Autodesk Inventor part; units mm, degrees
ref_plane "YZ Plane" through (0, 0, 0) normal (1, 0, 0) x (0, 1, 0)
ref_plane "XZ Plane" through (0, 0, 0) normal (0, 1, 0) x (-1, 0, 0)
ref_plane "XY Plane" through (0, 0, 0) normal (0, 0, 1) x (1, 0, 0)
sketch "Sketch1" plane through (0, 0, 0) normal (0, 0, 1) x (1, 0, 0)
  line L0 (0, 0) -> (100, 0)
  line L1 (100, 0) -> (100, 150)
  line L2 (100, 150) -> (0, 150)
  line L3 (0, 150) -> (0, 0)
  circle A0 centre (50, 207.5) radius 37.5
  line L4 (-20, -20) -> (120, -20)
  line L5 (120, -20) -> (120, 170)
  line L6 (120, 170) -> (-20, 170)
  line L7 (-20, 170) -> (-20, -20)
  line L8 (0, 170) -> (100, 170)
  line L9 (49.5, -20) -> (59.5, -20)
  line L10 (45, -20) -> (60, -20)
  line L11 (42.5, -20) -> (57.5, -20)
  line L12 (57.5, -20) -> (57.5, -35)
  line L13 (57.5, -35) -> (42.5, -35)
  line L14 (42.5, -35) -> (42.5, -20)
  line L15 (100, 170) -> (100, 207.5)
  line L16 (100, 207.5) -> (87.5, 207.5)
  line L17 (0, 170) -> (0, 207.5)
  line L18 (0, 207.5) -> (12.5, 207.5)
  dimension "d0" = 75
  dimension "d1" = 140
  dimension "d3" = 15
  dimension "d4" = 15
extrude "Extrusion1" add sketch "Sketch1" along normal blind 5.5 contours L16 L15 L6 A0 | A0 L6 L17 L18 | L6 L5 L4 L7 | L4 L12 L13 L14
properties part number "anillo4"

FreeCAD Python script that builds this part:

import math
import FreeCAD as App
import Part
import Sketcher
Q = App.Units.Quantity


def add_polygon(sketch, points):
    """Adds a closed chain of lines whose ends are joined by coincident constraints."""
    first, n = sketch.GeometryCount, len(points)
    for a, b in zip(points, points[1:] + points[:1]):
        sketch.addGeometry(Part.LineSegment(App.Vector(*a, 0), App.Vector(*b, 0)), False)
    for i in range(n):
        sketch.addConstraint(Sketcher.Constraint("Coincident", first + i, 2, first + (i + 1) % n, 1))

doc = App.newDocument("Part")
body = doc.addObject("PartDesign::Body", "Body")

# Sketch on XY plane
sketch1 = doc.addObject("Sketcher::SketchObject", "Sketch")
body.addObject(sketch1)
sketch1.AttachmentSupport = (doc.XY_Plane, [""])
sketch1.MapMode = "FlatFace"
sketch1.addGeometry(Part.LineSegment(App.Vector(100, 208, 0), App.Vector(88, 208, 0)), False)  # 0
sketch1.addGeometry(Part.ArcOfCircle(Part.Circle(App.Vector(50, 208, 0), App.Vector(0, 0, 1), 38), math.radians(180), math.radians(360)), False)  # 1
sketch1.addGeometry(Part.LineSegment(App.Vector(12, 208, 0), App.Vector(0, 208, 0)), False)  # 2
sketch1.addGeometry(Part.LineSegment(App.Vector(0, 208, 0), App.Vector(0, 170, 0)), False)  # 3
sketch1.addGeometry(Part.LineSegment(App.Vector(0, 170, 0), App.Vector(-20, 170, 0)), False)  # 4
sketch1.addGeometry(Part.LineSegment(App.Vector(-20, 170, 0), App.Vector(-20, -20, 0)), False)  # 5
sketch1.addGeometry(Part.LineSegment(App.Vector(-20, -20, 0), App.Vector(42, -20, 0)), False)  # 6
sketch1.addGeometry(Part.LineSegment(App.Vector(42, -20, 0), App.Vector(42, -35, 0)), False)  # 7
sketch1.addGeometry(Part.LineSegment(App.Vector(42, -35, 0), App.Vector(58, -35, 0)), False)  # 8
sketch1.addGeometry(Part.LineSegment(App.Vector(58, -35, 0), App.Vector(58, -20, 0)), False)  # 9
sketch1.addGeometry(Part.LineSegment(App.Vector(58, -20, 0), App.Vector(120, -20, 0)), False)  # 10
sketch1.addGeometry(Part.LineSegment(App.Vector(120, -20, 0), App.Vector(120, 170, 0)), False)  # 11
sketch1.addGeometry(Part.LineSegment(App.Vector(120, 170, 0), App.Vector(100, 170, 0)), False)  # 12
sketch1.addGeometry(Part.LineSegment(App.Vector(100, 170, 0), App.Vector(100, 208, 0)), False)  # 13
add_polygon(sketch1, [(0, 0), (0, 150), (100, 150), (100, 0)])  # lines 14-17
sketch1.addConstraint(Sketcher.Constraint("Coincident", 0, 2, 1, 2))
sketch1.addConstraint(Sketcher.Constraint("Coincident", 1, 1, 2, 1))
sketch1.addConstraint(Sketcher.Constraint("Coincident", 2, 2, 3, 1))
sketch1.addConstraint(Sketcher.Constraint("Coincident", 3, 2, 4, 1))
sketch1.addConstraint(Sketcher.Constraint("Coincident", 4, 2, 5, 1))
sketch1.addConstraint(Sketcher.Constraint("Coincident", 5, 2, 6, 1))
sketch1.addConstraint(Sketcher.Constraint("Coincident", 6, 2, 7, 1))
sketch1.addConstraint(Sketcher.Constraint("Coincident", 7, 2, 8, 1))
sketch1.addConstraint(Sketcher.Constraint("Coincident", 8, 2, 9, 1))
sketch1.addConstraint(Sketcher.Constraint("Coincident", 9, 2, 10, 1))
sketch1.addConstraint(Sketcher.Constraint("Coincident", 10, 2, 11, 1))
sketch1.addConstraint(Sketcher.Constraint("Coincident", 11, 2, 12, 1))
sketch1.addConstraint(Sketcher.Constraint("Coincident", 12, 2, 13, 1))
sketch1.addConstraint(Sketcher.Constraint("Coincident", 13, 2, 0, 1))
sketch1.addConstraint(Sketcher.Constraint("Horizontal", 0))
sketch1.addConstraint(Sketcher.Constraint("Horizontal", 2))
sketch1.addConstraint(Sketcher.Constraint("Vertical", 3))
sketch1.addConstraint(Sketcher.Constraint("Horizontal", 4))
sketch1.addConstraint(Sketcher.Constraint("Vertical", 5))
sketch1.addConstraint(Sketcher.Constraint("Horizontal", 6))
sketch1.addConstraint(Sketcher.Constraint("Vertical", 7))
sketch1.addConstraint(Sketcher.Constraint("Horizontal", 8))
sketch1.addConstraint(Sketcher.Constraint("Vertical", 9))
sketch1.addConstraint(Sketcher.Constraint("Horizontal", 10))
sketch1.addConstraint(Sketcher.Constraint("Vertical", 11))
sketch1.addConstraint(Sketcher.Constraint("Horizontal", 12))
sketch1.addConstraint(Sketcher.Constraint("Vertical", 13))
sketch1.addConstraint(Sketcher.Constraint("Vertical", 14))
sketch1.addConstraint(Sketcher.Constraint("Horizontal", 15))
sketch1.addConstraint(Sketcher.Constraint("Vertical", 16))
sketch1.addConstraint(Sketcher.Constraint("Horizontal", 17))
sketch1.addConstraint(Sketcher.Constraint("Coincident", 17, 2, -1, 1))
sketch1.addConstraint(Sketcher.Constraint("PointOnObject", 2, 2, -2))
sketch1.addConstraint(Sketcher.Constraint("Horizontal", 1, 3, 0, 2))
sketch1.addConstraint(Sketcher.Constraint("Horizontal", 0, 2, 1, 1))
sketch1.addConstraint(Sketcher.Constraint("Horizontal", 6, 2, 9, 2))
sketch1.addConstraint(Sketcher.Constraint("Horizontal", 4, 2, 11, 2))
sketch1.addConstraint(Sketcher.Constraint("Vertical", 13, 2, 15, 2))
sketch1.addConstraint(Sketcher.Constraint("Equal", 0, 2))
sketch1.addConstraint(Sketcher.Constraint("Equal", 6, 10))
sketch1.addConstraint(Sketcher.Constraint("Equal", 4, 12))
sketch1.addConstraint(Sketcher.Constraint("Equal", 8, 7))
sketch1.addConstraint(Sketcher.Constraint("Radius", 1, Q("37.5 mm")))
sketch1.addConstraint(Sketcher.Constraint("DistanceX", 8, 1, 8, 2, Q("15 mm")))
sketch1.addConstraint(Sketcher.Constraint("DistanceX", 5, 2, 10, 2, Q("140 mm")))
sketch1.addConstraint(Sketcher.Constraint("DistanceX", 4, 2, 4, 1, Q("20 mm")))
sketch1.addConstraint(Sketcher.Constraint("DistanceY", 5, 2, 5, 1, Q("190 mm")))
sketch1.addConstraint(Sketcher.Constraint("DistanceY", 14, 1, 14, 2, Q("150 mm")))
sketch1.addConstraint(Sketcher.Constraint("DistanceY", 3, 2, 3, 1, Q("37.5 mm")))
sketch1.addConstraint(Sketcher.Constraint("DistanceY", -1, 1, 3, 2, Q("170 mm")))
pad1 = doc.addObject("PartDesign::Pad", "Pad")
body.addObject(pad1)
pad1.Profile = sketch1
pad1.Length = 5.5

doc.recompute()
